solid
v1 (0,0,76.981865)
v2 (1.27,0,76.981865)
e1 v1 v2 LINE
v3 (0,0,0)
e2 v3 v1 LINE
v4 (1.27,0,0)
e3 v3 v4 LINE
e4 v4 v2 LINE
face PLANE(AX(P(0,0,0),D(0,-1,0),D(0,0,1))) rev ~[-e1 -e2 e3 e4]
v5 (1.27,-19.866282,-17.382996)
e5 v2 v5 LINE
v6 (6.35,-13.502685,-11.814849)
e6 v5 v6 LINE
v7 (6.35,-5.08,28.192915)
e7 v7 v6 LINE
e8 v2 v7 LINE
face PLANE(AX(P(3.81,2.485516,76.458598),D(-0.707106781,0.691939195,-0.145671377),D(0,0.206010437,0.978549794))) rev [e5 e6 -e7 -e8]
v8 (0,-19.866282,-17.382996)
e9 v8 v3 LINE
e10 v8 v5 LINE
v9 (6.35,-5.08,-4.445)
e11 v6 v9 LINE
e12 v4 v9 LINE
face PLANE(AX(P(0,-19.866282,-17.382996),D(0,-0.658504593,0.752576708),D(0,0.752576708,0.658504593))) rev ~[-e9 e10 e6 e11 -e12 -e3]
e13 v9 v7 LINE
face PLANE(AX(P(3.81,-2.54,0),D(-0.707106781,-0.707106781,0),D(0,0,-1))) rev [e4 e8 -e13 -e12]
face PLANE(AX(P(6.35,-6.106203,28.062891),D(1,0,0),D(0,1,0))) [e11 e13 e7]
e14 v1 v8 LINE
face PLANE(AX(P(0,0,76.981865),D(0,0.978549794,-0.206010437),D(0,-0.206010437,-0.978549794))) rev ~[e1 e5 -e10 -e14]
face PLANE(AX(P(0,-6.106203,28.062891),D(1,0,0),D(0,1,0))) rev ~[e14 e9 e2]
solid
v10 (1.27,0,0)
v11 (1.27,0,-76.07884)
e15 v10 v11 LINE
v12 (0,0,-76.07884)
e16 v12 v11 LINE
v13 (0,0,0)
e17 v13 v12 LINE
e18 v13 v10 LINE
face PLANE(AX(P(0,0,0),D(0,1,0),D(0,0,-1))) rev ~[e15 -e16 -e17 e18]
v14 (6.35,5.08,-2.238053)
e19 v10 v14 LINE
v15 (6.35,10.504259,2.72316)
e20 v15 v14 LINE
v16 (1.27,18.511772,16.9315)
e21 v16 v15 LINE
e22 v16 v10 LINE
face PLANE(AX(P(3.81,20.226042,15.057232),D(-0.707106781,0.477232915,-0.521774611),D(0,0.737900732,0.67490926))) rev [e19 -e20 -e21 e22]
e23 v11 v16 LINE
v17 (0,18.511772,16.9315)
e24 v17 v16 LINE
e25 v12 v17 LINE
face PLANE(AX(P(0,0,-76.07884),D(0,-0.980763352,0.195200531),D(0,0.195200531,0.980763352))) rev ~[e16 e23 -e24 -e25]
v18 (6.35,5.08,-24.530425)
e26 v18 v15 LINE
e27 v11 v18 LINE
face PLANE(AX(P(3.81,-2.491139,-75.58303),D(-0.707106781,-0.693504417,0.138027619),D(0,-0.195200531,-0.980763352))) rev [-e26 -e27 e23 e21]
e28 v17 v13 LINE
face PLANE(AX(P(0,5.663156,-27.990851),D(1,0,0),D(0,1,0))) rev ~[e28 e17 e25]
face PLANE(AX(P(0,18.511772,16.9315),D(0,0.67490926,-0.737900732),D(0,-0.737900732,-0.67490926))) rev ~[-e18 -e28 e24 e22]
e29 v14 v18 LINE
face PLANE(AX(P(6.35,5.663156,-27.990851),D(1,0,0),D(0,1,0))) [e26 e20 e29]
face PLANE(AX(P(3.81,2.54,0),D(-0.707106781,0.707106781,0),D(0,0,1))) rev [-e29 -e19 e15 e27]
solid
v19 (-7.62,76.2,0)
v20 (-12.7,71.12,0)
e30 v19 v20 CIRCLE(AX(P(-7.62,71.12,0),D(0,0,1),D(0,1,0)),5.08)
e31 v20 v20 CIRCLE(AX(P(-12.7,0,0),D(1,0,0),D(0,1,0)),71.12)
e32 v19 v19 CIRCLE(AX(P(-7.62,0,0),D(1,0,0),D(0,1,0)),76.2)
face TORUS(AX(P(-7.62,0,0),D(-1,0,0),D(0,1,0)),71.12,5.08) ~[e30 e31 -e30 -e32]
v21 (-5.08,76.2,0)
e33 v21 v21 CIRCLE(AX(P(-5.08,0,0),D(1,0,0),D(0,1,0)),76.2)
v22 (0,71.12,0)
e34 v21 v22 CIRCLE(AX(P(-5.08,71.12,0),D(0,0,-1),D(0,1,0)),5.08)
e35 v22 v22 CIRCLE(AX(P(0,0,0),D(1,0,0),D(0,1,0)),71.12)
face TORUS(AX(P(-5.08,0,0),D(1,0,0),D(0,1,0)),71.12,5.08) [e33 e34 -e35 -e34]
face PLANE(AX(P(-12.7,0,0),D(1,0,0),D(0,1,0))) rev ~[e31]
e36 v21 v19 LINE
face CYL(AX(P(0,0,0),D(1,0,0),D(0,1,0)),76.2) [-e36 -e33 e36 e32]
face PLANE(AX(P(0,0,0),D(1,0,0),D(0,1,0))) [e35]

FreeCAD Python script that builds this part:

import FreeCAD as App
import Part
import Sketcher
Q = App.Units.Quantity


def edges_at(feature, points):
    """Names of the edges that pass closest to the given points."""
    edges = feature.Shape.Edges
    near = lambda p: min(range(len(edges)), key=lambda i: edges[i].distToShape(Part.Vertex(*p))[0])
    return sorted({f"Edge{near(p) + 1}" for p in points})

doc = App.newDocument("Part")
body = doc.addObject("PartDesign::Body", "Body")

# Sketch on YZ plane
sketch1 = body.newObject("Sketcher::SketchObject", "Sketch")
sketch1.AttachmentSupport = (doc.getObject("YZ_Plane"), [""])
sketch1.MapMode = "FlatFace"
sketch1.addGeometry(Part.LineSegment(App.Vector(19, 17, 0), App.Vector(0, 0, 0)), False)
sketch1.addGeometry(Part.LineSegment(App.Vector(0, 0, 0), App.Vector(0, -76, 0)), False)
sketch1.addGeometry(Part.LineSegment(App.Vector(0, -76, 0), App.Vector(19, 17, 0)), False)
sketch1.addConstraint(Sketcher.Constraint("Coincident", 0, 2, 1, 1))
sketch1.addConstraint(Sketcher.Constraint("Coincident", 1, 2, 2, 1))
sketch1.addConstraint(Sketcher.Constraint("Coincident", 2, 2, 0, 1))
sketch1.addConstraint(Sketcher.Constraint("Vertical", 1))
sketch1.addConstraint(Sketcher.Constraint("Coincident", 0, 2, -1, 1))
sketch1.addConstraint(Sketcher.Constraint("DistanceY", 1, 2, 1, 1, 76.07884))
sketch1.addConstraint(Sketcher.Constraint("DistanceY", -1, 1, 2, 2, 16.9315))
sketch1.addConstraint(Sketcher.Constraint("Distance", 2, 94.83464))
pad1 = body.newObject("PartDesign::Pad", "Pad")
pad1.Profile = sketch1
pad1.Length = Q("0.25 in")
doc.recompute()

chamfer = body.newObject("PartDesign::Chamfer", "Chamfer")
chamfer.Base = (pad1, edges_at(pad1, [(6.35, 0, -38.039), (6.35, 9.256, -29.574), (6.35, 9.256, 8.466)]))
chamfer.Size = Q("0.2 in")
body2 = doc.addObject("PartDesign::Body", "Body001")

# Sketch on YZ plane
sketch2 = body2.newObject("Sketcher::SketchObject", "Sketch001")
sketch2.AttachmentSupport = (doc.getObject("YZ_Plane001"), [""])
sketch2.MapMode = "FlatFace"
sketch2.addGeometry(Part.LineSegment(App.Vector(0, 0, 0), App.Vector(0, 77, 0)), False)
sketch2.addGeometry(Part.LineSegment(App.Vector(0, 77, 0), App.Vector(-20, -17, 0)), False)
sketch2.addGeometry(Part.LineSegment(App.Vector(-20, -17, 0), App.Vector(0, 0, 0)), False)
sketch2.addConstraint(Sketcher.Constraint("Coincident", 0, 2, 1, 1))
sketch2.addConstraint(Sketcher.Constraint("Coincident", 1, 2, 2, 1))
sketch2.addConstraint(Sketcher.Constraint("Coincident", 2, 2, 0, 1))
sketch2.addConstraint(Sketcher.Constraint("Vertical", 0))
sketch2.addConstraint(Sketcher.Constraint("Coincident", 2, 2, -1, 1))
sketch2.addConstraint(Sketcher.Constraint("DistanceY", 0, 1, 0, 2, 76.981865))
sketch2.addConstraint(Sketcher.Constraint("DistanceY", 1, 2, 0, 2, 94.364861))
sketch2.addConstraint(Sketcher.Constraint("Distance", 1, 96.433377))
pad2 = body2.newObject("PartDesign::Pad", "Pad001")
pad2.Profile = sketch2
pad2.Length = Q("0.25 in")
doc.recompute()

chamfer2 = body2.newObject("PartDesign::Chamfer", "Chamfer001")
chamfer2.Base = (pad2, edges_at(pad2, [(6.35, -9.933, 29.799), (6.35, 0, 38.491)]))
chamfer2.Size = Q("0.2 in")
body3 = doc.addObject("PartDesign::Body", "Body002")

# Sketch on YZ plane
sketch3 = body3.newObject("Sketcher::SketchObject", "Sketch002")
sketch3.AttachmentSupport = (doc.getObject("YZ_Plane002"), [""])
sketch3.MapMode = "FlatFace"
sketch3.addGeometry(Part.Circle(App.Vector(0, 0, 0), App.Vector(0, 0, 1), 76), False)
sketch3.addConstraint(Sketcher.Constraint("Coincident", 0, 3, -1, 1))
sketch3.addConstraint(Sketcher.Constraint("Diameter", 0, Q("6 in")))
pad3 = body3.newObject("PartDesign::Pad", "Pad002")
pad3.Profile = sketch3
pad3.Length = Q("0.5 in")
pad3.Reversed = True
doc.recompute()

fillet = body3.newObject("PartDesign::Fillet", "Fillet")
fillet.Base = (pad3, edges_at(pad3, [(0, -76.2, 0), (-12.7, -76.2, 0)]))
fillet.Radius = Q("0.2 in")

doc.recompute()
